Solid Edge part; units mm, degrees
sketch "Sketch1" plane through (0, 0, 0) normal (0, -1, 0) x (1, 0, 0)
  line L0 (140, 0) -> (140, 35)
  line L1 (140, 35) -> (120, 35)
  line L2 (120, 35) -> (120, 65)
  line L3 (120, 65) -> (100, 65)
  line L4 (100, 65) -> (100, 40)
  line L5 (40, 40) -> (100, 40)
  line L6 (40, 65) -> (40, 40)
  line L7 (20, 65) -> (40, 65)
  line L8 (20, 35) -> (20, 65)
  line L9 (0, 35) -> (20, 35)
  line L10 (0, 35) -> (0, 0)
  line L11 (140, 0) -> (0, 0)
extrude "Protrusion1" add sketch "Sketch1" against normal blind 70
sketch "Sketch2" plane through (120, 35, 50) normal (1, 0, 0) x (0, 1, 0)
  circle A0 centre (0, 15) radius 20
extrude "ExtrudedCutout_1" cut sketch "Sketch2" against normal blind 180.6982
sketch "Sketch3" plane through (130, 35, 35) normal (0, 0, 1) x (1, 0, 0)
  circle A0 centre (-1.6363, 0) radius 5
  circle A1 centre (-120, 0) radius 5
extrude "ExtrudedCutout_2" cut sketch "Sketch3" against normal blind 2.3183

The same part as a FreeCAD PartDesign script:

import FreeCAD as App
import Part
import Sketcher

V = App.Vector

doc = App.newDocument("Part")
body = doc.addObject("PartDesign::Body", "Body")

# Sketch on XZ plane
sketch1 = doc.addObject("Sketcher::SketchObject", "Sketch")
body.addObject(sketch1)
sketch1.AttachmentSupport = (doc.XZ_Plane, [""])
sketch1.MapMode = "FlatFace"
sketch1.addGeometry(Part.LineSegment(V(0, 0, 0), V(140, 0, 0)), False)
sketch1.addGeometry(Part.LineSegment(V(140, 0, 0), V(140, 35, 0)), False)
sketch1.addGeometry(Part.LineSegment(V(140, 35, 0), V(120, 35, 0)), False)
sketch1.addGeometry(Part.LineSegment(V(120, 35, 0), V(120, 65, 0)), False)
sketch1.addGeometry(Part.LineSegment(V(120, 65, 0), V(100, 65, 0)), False)
sketch1.addGeometry(Part.LineSegment(V(100, 65, 0), V(100, 40, 0)), False)
sketch1.addGeometry(Part.LineSegment(V(100, 40, 0), V(40, 40, 0)), False)
sketch1.addGeometry(Part.LineSegment(V(40, 40, 0), V(40, 65, 0)), False)
sketch1.addGeometry(Part.LineSegment(V(40, 65, 0), V(20, 65, 0)), False)
sketch1.addGeometry(Part.LineSegment(V(20, 65, 0), V(20, 35, 0)), False)
sketch1.addGeometry(Part.LineSegment(V(20, 35, 0), V(0, 35, 0)), False)
sketch1.addGeometry(Part.LineSegment(V(0, 35, 0), V(0, 0, 0)), False)
sketch1.addConstraint(Sketcher.Constraint("Coincident", 0, 2, 1, 1))
sketch1.addConstraint(Sketcher.Constraint("Coincident", 1, 2, 2, 1))
sketch1.addConstraint(Sketcher.Constraint("Coincident", 2, 2, 3, 1))
sketch1.addConstraint(Sketcher.Constraint("Coincident", 3, 2, 4, 1))
sketch1.addConstraint(Sketcher.Constraint("Coincident", 4, 2, 5, 1))
sketch1.addConstraint(Sketcher.Constraint("Coincident", 5, 2, 6, 1))
sketch1.addConstraint(Sketcher.Constraint("Coincident", 6, 2, 7, 1))
sketch1.addConstraint(Sketcher.Constraint("Coincident", 7, 2, 8, 1))
sketch1.addConstraint(Sketcher.Constraint("Coincident", 8, 2, 9, 1))
sketch1.addConstraint(Sketcher.Constraint("Coincident", 9, 2, 10, 1))
sketch1.addConstraint(Sketcher.Constraint("Coincident", 10, 2, 11, 1))
sketch1.addConstraint(Sketcher.Constraint("Coincident", 11, 2, 0, 1))
sketch1.addConstraint(Sketcher.Constraint("Horizontal", 0))
sketch1.addConstraint(Sketcher.Constraint("Vertical", 1))
sketch1.addConstraint(Sketcher.Constraint("Horizontal", 2))
sketch1.addConstraint(Sketcher.Constraint("Vertical", 3))
sketch1.addConstraint(Sketcher.Constraint("Horizontal", 4))
sketch1.addConstraint(Sketcher.Constraint("Vertical", 5))
sketch1.addConstraint(Sketcher.Constraint("Horizontal", 6))
sketch1.addConstraint(Sketcher.Constraint("Vertical", 7))
sketch1.addConstraint(Sketcher.Constraint("Horizontal", 8))
sketch1.addConstraint(Sketcher.Constraint("Vertical", 9))
sketch1.addConstraint(Sketcher.Constraint("Horizontal", 10))
sketch1.addConstraint(Sketcher.Constraint("Vertical", 11))
sketch1.addConstraint(Sketcher.Constraint("Coincident", 11, 2, -1, 1))
sketch1.addConstraint(Sketcher.Constraint("Horizontal", 4, 2, 7, 2))
sketch1.addConstraint(Sketcher.Constraint("Horizontal", 2, 2, 9, 2))
sketch1.addConstraint(Sketcher.Constraint("Equal", 2, 4))
sketch1.addConstraint(Sketcher.Constraint("Equal", 4, 8))
sketch1.addConstraint(Sketcher.Constraint("Equal", 8, 10))
sketch1.addConstraint(Sketcher.Constraint("DistanceX", 0, 1, 0, 2, 140.0))
sketch1.addConstraint(Sketcher.Constraint("DistanceX", 2, 2, 2, 1, 20.0))
sketch1.addConstraint(Sketcher.Constraint("DistanceY", 1, 1, 1, 2, 35.0))
sketch1.addConstraint(Sketcher.Constraint("DistanceY", 3, 1, 3, 2, 30.0))
sketch1.addConstraint(Sketcher.Constraint("DistanceY", 5, 2, 5, 1, 25.0))
pad1 = doc.addObject("PartDesign::Pad", "Pad")
body.addObject(pad1)
pad1.Profile = sketch1
pad1.Length = 70
pad1.Reversed = True

# Sketch on YZ plane
sketch2 = doc.addObject("Sketcher::SketchObject", "Sketch001")
body.addObject(sketch2)
sketch2.AttachmentSupport = (doc.YZ_Plane, [""])
sketch2.MapMode = "FlatFace"
sketch2.AttachmentOffset = App.Placement(V(0, 0, 120), App.Rotation())
sketch2.addGeometry(Part.Circle(V(35, 65, 0), V(0, 0, 1), 20), False)
sketch2.addConstraint(Sketcher.Constraint("Diameter", 0, 40.0))
sketch2.addConstraint(Sketcher.Constraint("DistanceX", -1, 1, 0, 3, 35.0))
sketch2.addConstraint(Sketcher.Constraint("DistanceY", -1, 1, 0, 3, 65.0))
pocket1 = doc.addObject("PartDesign::Pocket", "Pocket")
body.addObject(pocket1)
pocket1.Profile = sketch2
pocket1.Length = 180.6982

# Sketch on XY plane
sketch3 = doc.addObject("Sketcher::SketchObject", "Sketch002")
body.addObject(sketch3)
sketch3.AttachmentSupport = (doc.XY_Plane, [""])
sketch3.MapMode = "FlatFace"
sketch3.AttachmentOffset = App.Placement(V(0, 0, 35), App.Rotation())
sketch3.addGeometry(Part.Circle(V(128, 35, 0), V(0, 0, 1), 5), False)
sketch3.addGeometry(Part.Circle(V(10, 35, 0), V(0, 0, 1), 5), False)
sketch3.addConstraint(Sketcher.Constraint("Equal", 0, 1))
sketch3.addConstraint(Sketcher.Constraint("Horizontal", 0, 3, 1, 3))
sketch3.addConstraint(Sketcher.Constraint("Diameter", 0, 10.0))
sketch3.addConstraint(Sketcher.Constraint("DistanceY", -1, 1, 0, 3, 35.0))
sketch3.addConstraint(Sketcher.Constraint("DistanceX", -1, 1, 1, 3, 10.0))
sketch3.addConstraint(Sketcher.Constraint("DistanceX", -1, 1, 0, 3, 128.3637))
pocket2 = doc.addObject("PartDesign::Pocket", "Pocket001")
body.addObject(pocket2)
pocket2.Profile = sketch3
pocket2.Length = 2.3183

doc.recompute()
